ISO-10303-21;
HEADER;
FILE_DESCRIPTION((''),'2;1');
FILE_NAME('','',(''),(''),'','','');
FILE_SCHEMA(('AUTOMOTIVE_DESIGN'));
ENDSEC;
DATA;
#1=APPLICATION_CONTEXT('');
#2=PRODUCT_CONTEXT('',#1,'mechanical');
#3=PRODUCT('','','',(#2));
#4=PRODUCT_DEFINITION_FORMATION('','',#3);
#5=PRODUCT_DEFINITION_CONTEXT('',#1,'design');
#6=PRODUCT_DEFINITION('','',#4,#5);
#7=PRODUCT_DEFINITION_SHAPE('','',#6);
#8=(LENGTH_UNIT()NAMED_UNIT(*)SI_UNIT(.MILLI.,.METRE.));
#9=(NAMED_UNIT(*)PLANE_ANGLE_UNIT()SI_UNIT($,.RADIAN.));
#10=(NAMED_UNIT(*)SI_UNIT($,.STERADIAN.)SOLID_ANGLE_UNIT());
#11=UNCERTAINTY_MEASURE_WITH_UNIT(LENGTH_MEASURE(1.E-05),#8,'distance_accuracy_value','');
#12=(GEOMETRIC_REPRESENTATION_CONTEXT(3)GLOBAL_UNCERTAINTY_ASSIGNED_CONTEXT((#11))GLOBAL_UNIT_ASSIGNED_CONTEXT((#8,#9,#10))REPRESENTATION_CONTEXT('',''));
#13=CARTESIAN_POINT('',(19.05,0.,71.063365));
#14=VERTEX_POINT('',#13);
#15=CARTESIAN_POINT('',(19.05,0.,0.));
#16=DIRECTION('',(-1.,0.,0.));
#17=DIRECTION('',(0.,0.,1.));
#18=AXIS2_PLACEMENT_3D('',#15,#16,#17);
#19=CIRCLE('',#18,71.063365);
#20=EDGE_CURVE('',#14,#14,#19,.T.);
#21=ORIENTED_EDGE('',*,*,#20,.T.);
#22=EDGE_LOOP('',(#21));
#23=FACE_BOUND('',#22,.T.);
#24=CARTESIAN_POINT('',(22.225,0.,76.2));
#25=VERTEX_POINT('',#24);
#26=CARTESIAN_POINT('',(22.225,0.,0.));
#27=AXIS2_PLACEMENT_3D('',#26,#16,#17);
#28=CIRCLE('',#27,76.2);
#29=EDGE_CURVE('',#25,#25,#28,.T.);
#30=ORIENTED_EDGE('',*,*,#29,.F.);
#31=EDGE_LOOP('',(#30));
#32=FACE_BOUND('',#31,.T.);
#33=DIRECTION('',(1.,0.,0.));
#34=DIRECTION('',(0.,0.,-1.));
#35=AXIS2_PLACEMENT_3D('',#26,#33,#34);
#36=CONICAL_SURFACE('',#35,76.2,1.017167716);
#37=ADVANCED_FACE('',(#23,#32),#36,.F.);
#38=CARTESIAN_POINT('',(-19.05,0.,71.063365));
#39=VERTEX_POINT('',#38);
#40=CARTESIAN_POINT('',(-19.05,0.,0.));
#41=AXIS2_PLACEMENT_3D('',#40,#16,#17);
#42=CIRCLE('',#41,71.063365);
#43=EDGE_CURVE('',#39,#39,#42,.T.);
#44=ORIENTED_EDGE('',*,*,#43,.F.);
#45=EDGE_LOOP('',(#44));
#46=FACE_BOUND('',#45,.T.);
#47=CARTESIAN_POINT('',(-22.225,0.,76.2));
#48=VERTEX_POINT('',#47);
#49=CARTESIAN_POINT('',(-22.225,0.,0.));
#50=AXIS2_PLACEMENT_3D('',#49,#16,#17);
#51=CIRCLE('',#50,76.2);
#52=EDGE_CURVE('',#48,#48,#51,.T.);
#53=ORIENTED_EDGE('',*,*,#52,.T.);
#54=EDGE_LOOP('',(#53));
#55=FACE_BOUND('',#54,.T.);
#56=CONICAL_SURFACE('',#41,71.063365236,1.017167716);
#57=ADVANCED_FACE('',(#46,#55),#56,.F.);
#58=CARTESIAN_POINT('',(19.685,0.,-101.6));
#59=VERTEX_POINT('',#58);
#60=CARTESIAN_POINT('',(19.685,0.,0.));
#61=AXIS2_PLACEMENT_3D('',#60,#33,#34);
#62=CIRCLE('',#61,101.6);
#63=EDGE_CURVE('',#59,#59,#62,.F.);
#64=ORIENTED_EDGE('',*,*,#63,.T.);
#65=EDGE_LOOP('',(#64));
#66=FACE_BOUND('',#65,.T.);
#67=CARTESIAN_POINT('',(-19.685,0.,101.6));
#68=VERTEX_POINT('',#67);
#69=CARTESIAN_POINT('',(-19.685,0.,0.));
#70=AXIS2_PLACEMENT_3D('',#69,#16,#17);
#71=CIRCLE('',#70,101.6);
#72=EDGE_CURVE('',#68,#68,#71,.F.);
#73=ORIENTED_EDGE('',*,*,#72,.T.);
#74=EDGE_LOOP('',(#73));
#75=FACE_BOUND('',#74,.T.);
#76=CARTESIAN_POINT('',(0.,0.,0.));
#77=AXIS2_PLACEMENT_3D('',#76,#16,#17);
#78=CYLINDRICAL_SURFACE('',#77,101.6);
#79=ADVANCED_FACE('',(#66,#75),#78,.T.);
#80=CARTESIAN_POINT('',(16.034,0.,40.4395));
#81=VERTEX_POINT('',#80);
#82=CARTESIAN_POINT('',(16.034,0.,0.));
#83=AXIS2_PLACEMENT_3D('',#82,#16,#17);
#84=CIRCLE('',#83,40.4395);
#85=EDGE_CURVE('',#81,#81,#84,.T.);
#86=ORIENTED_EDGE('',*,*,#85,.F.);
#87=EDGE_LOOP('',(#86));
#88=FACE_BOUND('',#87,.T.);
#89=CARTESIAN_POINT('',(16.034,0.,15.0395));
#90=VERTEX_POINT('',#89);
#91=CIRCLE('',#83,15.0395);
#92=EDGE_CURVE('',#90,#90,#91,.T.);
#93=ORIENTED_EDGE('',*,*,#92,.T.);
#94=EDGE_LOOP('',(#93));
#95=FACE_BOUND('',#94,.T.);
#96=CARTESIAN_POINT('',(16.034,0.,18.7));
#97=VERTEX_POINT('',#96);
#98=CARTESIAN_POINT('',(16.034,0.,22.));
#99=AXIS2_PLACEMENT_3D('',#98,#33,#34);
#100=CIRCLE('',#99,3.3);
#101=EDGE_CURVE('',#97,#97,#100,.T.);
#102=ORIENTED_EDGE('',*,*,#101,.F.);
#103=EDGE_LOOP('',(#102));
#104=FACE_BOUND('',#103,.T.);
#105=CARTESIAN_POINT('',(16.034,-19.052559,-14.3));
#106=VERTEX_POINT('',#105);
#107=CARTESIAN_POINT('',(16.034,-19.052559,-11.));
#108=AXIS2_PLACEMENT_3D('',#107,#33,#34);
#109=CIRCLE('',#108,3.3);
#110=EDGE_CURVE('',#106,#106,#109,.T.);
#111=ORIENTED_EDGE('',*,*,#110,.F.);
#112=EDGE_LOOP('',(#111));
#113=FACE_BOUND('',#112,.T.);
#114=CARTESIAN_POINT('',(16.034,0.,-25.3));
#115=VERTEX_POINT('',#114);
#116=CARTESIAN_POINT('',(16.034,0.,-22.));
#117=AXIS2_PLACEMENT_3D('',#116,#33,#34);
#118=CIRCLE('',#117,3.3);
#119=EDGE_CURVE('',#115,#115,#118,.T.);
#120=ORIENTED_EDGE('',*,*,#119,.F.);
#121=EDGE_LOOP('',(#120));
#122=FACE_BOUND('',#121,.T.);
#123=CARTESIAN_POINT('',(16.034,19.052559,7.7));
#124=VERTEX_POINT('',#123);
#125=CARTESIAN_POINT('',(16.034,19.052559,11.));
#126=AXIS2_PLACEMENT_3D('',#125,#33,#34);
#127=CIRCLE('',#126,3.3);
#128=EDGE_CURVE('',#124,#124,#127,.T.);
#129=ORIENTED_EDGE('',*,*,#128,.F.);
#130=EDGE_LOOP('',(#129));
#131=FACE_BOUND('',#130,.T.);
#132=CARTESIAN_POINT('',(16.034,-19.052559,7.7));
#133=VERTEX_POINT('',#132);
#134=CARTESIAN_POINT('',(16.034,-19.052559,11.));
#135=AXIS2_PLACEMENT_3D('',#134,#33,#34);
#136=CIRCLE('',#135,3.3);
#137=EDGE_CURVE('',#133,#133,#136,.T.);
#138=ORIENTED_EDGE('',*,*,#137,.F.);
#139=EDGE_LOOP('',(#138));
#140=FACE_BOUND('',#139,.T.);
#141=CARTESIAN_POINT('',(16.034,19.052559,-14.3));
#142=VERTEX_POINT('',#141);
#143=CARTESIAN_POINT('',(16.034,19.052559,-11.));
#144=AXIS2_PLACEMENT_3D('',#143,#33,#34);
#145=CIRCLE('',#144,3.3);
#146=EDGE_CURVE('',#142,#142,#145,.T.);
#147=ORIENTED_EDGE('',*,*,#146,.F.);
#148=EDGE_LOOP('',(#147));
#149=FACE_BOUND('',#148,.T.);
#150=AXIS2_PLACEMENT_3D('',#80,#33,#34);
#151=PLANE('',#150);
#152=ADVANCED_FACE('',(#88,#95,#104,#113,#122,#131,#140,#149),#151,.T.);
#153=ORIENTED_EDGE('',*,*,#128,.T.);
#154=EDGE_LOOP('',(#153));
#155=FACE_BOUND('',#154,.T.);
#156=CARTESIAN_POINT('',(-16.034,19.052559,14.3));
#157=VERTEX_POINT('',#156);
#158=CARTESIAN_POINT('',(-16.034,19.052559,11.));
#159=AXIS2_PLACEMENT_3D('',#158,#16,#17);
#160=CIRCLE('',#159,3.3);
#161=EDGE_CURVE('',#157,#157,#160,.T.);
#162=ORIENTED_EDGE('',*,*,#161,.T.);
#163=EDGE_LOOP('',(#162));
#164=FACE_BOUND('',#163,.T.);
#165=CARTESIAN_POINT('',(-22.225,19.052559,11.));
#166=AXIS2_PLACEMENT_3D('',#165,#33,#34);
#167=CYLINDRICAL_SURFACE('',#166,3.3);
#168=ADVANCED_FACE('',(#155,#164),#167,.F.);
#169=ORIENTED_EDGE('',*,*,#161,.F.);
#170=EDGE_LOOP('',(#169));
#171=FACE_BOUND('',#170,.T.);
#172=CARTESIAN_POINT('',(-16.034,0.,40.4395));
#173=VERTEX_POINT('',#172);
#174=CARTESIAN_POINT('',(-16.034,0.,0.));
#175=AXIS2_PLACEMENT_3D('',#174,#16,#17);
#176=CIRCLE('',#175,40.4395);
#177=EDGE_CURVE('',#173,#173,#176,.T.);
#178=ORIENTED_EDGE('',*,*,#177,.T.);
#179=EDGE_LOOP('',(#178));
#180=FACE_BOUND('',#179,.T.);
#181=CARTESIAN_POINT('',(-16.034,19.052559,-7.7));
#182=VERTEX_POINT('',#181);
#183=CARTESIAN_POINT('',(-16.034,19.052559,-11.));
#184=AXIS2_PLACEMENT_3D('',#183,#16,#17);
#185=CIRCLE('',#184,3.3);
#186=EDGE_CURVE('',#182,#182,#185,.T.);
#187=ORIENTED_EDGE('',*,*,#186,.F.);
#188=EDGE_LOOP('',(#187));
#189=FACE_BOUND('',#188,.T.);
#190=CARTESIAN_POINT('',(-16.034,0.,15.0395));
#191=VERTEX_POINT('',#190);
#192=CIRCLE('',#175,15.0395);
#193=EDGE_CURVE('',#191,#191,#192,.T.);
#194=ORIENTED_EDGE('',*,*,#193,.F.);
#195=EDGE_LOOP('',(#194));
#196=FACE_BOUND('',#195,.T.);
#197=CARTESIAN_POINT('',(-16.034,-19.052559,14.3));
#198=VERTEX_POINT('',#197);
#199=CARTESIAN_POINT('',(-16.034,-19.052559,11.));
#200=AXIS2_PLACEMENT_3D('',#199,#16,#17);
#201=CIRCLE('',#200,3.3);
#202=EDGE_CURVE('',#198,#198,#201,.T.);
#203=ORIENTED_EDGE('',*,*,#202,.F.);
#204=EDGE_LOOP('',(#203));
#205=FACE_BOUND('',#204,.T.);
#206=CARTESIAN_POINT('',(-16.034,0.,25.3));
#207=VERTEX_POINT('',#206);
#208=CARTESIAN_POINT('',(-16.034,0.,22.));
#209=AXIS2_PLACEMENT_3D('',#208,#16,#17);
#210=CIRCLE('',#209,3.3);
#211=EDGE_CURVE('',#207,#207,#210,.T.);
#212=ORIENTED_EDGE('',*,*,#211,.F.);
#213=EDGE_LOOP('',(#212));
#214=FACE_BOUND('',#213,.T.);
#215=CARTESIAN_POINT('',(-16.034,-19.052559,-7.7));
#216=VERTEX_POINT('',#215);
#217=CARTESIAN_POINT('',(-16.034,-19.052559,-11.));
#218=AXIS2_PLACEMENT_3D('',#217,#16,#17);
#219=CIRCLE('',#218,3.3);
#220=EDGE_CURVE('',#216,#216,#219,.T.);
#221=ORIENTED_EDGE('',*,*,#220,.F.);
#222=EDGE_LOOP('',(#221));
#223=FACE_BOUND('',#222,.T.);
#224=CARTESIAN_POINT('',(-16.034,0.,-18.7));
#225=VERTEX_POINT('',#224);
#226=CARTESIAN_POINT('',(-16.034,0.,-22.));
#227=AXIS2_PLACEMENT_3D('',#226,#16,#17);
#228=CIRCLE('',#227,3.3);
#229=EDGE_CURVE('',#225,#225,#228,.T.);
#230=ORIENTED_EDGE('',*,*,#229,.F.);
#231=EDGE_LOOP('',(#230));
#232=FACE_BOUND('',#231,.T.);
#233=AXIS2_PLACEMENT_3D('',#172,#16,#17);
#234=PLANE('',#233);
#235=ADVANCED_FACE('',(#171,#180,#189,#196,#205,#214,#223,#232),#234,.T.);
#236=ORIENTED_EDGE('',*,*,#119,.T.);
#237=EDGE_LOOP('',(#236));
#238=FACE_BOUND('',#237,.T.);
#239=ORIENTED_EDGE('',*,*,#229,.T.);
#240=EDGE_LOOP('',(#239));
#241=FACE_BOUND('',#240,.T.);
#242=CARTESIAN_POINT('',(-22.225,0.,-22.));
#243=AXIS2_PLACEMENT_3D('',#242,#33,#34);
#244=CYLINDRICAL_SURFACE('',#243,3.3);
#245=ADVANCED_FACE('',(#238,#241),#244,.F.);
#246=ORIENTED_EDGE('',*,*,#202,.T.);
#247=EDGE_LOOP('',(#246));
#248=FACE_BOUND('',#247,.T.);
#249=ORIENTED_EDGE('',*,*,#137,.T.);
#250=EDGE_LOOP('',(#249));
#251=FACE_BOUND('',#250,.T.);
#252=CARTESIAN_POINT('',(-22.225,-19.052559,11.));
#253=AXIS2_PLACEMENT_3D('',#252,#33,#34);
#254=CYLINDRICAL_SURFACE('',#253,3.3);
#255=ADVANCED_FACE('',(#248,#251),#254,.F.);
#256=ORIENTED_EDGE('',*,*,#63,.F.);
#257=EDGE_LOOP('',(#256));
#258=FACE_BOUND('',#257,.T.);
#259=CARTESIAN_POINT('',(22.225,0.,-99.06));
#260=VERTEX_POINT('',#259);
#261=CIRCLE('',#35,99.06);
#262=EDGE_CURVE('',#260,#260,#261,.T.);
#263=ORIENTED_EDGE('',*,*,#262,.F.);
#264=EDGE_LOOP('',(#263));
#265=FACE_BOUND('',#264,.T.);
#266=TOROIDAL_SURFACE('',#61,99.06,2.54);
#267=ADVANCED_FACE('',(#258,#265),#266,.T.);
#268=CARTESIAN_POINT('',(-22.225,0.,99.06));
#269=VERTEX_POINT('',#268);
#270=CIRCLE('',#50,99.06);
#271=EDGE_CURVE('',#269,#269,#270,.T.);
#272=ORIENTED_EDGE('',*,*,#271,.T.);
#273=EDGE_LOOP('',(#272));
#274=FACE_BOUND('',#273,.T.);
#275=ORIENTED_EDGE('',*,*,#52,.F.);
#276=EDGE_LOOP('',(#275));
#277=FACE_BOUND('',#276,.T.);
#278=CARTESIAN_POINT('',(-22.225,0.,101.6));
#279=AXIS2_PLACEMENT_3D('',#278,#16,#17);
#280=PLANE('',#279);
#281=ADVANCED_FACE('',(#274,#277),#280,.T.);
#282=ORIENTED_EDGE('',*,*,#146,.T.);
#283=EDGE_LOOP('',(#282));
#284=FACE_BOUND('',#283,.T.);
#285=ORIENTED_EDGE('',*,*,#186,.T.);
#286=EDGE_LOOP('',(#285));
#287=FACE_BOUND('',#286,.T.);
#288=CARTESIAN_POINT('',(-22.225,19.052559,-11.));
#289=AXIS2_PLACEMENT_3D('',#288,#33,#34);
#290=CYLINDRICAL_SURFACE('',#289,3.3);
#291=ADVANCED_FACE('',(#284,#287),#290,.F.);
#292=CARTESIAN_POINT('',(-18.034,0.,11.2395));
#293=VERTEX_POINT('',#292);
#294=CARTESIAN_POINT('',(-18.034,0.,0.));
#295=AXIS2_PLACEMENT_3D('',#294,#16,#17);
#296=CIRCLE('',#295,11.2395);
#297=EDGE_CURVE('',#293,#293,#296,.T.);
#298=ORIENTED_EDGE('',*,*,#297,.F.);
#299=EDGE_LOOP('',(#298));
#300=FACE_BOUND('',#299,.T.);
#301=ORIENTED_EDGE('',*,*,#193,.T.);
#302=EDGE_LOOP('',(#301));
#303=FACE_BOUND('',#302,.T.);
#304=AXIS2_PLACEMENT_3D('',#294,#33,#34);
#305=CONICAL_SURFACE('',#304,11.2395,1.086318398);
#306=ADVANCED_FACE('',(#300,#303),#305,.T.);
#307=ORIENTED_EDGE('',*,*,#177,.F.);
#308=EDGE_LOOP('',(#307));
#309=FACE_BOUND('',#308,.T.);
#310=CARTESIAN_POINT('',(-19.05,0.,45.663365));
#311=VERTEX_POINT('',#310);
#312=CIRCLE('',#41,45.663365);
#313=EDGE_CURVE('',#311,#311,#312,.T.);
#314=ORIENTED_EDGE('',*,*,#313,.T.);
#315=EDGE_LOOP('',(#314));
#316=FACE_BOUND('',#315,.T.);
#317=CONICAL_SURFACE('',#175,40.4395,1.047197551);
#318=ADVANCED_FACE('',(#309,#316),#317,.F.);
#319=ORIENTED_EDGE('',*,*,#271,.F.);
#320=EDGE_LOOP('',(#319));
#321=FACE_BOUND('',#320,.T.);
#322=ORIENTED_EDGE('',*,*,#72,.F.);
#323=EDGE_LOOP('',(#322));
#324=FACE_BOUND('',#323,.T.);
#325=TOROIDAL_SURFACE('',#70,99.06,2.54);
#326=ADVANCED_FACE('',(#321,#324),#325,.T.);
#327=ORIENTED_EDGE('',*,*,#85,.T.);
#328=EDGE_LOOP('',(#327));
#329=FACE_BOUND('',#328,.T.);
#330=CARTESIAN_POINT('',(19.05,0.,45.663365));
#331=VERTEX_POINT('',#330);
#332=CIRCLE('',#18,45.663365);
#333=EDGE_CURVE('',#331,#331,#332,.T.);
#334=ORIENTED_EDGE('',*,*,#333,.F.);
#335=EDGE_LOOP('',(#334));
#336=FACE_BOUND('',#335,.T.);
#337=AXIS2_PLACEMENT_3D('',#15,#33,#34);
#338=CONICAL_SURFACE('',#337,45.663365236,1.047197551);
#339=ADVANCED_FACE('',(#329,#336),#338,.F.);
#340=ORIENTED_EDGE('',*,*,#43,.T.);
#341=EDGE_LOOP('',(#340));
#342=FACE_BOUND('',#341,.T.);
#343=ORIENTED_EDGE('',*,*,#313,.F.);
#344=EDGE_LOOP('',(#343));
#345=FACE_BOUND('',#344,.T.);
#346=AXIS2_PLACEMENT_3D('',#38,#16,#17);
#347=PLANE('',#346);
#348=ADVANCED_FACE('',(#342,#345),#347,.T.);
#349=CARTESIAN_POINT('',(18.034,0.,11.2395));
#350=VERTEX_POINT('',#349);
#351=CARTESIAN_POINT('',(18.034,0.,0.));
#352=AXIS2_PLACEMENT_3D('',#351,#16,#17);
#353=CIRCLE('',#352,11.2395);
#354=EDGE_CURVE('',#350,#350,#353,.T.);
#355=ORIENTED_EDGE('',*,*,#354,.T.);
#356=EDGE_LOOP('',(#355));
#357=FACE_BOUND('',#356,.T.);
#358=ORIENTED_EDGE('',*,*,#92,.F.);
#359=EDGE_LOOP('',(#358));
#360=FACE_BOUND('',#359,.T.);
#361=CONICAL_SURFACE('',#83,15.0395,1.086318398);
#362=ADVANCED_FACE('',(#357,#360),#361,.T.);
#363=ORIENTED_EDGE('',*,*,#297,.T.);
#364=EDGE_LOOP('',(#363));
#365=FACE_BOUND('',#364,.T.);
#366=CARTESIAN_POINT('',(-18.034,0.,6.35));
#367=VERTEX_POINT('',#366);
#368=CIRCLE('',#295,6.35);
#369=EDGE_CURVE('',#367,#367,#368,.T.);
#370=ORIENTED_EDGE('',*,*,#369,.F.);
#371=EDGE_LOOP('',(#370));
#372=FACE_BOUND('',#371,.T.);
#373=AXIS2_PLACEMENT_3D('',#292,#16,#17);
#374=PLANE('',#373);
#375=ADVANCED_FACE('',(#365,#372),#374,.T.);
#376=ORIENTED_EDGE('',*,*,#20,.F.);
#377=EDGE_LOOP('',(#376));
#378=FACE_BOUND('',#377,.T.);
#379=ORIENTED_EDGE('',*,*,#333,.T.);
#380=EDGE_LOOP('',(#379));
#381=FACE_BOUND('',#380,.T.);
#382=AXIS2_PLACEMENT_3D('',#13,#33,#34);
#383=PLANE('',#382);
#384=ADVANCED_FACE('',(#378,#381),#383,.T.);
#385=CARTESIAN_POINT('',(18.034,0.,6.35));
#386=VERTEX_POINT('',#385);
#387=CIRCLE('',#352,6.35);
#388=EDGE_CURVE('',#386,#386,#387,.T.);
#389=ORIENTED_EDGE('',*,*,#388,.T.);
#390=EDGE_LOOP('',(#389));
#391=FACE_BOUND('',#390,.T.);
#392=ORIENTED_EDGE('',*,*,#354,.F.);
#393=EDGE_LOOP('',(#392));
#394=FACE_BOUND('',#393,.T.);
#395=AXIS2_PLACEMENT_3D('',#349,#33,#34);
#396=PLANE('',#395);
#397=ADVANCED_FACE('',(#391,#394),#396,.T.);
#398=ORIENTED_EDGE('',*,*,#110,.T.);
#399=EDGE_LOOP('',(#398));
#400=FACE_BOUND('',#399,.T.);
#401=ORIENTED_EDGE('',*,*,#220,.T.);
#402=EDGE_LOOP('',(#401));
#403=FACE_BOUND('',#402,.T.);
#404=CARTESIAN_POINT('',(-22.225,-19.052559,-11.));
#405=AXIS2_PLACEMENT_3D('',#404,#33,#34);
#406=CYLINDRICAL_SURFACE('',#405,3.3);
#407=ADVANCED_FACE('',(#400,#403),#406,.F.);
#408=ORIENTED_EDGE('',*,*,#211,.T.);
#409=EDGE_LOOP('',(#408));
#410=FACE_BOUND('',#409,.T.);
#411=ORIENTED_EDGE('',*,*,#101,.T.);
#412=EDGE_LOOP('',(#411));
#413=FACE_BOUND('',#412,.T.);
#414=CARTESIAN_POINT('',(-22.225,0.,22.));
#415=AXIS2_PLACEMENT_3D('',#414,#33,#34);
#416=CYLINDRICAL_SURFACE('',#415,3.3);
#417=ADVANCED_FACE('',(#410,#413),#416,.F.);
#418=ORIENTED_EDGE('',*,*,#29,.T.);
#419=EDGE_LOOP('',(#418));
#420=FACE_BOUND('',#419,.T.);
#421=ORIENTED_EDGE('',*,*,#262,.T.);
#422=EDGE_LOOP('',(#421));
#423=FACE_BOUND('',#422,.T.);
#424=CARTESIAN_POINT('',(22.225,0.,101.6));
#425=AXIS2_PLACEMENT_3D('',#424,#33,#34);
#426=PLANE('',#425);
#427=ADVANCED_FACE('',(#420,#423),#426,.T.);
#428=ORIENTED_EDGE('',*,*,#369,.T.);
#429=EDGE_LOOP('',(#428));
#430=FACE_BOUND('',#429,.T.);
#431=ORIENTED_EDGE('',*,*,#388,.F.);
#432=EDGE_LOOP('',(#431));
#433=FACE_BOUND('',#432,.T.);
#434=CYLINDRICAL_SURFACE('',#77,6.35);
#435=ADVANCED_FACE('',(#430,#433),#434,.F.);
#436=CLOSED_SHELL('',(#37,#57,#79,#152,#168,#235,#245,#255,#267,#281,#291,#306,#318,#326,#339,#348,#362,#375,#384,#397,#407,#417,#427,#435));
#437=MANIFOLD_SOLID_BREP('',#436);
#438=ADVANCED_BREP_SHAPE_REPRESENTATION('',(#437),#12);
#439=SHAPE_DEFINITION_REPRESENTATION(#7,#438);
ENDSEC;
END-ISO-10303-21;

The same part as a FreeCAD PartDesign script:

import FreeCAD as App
import Part
import Sketcher
from FreeCAD import Vector
Q = App.Units.Quantity


def edges_at(feature, points):
    """Names of the edges that pass closest to the given points."""
    edges = feature.Shape.Edges
    near = lambda p: min(range(len(edges)), key=lambda i: edges[i].distToShape(Part.Vertex(*p))[0])
    return sorted({f"Edge{near(p) + 1}" for p in points})

doc = App.newDocument("Part")
body = doc.addObject("PartDesign::Body", "Body")

sketch1 = doc.addObject("Sketcher::SketchObject", "Sketch")
body.addObject(sketch1)
sketch1.AttachmentSupport = (doc.XZ_Plane, [""])
sketch1.MapMode = "FlatFace"
sketch1.addGeometry([
    Part.LineSegment(Vector(22.225, 101.6, 0), Vector(22.225, 76.2, 0)),
    Part.LineSegment(Vector(22.225, 76.2, 0), Vector(19.05, 71.063365, 0)),
    Part.LineSegment(Vector(19.05, 71.063365, 0), Vector(19.05, 45.663365, 0)),
    Part.LineSegment(Vector(19.05, 45.663365, 0), Vector(16.034, 40.4395, 0)),
    Part.LineSegment(Vector(16.034, 40.4395, 0), Vector(16.034, 15.0395, 0)),
    Part.LineSegment(Vector(16.034, 15.0395, 0), Vector(18.034, 11.2395, 0)),
    Part.LineSegment(Vector(18.034, 11.2395, 0), Vector(18.034, 6.35, 0)),
    Part.LineSegment(Vector(18.034, 6.35, 0), Vector(-18.034, 6.35, 0)),
    Part.LineSegment(Vector(-18.034, 6.35, 0), Vector(-18.034, 11.2395, 0)),
    Part.LineSegment(Vector(-18.034, 11.2395, 0), Vector(-16.034, 15.0395, 0)),
    Part.LineSegment(Vector(-16.034, 15.0395, 0), Vector(-16.034, 40.4395, 0)),
    Part.LineSegment(Vector(-16.034, 40.4395, 0), Vector(-19.05, 45.663365, 0)),
    Part.LineSegment(Vector(-19.05, 45.663365, 0), Vector(-19.05, 71.063365, 0)),
    Part.LineSegment(Vector(-19.05, 71.063365, 0), Vector(-22.225, 76.2, 0)),
    Part.LineSegment(Vector(-22.225, 76.2, 0), Vector(-22.225, 101.6, 0)),
    Part.LineSegment(Vector(-22.225, 101.6, 0), Vector(22.225, 101.6, 0)),
], False)
sketch1.addConstraint([
    Sketcher.Constraint("Coincident", 0, 2, 1, 1),
    Sketcher.Constraint("Coincident", 1, 2, 2, 1),
    Sketcher.Constraint("Coincident", 2, 2, 3, 1),
    Sketcher.Constraint("Coincident", 3, 2, 4, 1),
    Sketcher.Constraint("Coincident", 4, 2, 5, 1),
    Sketcher.Constraint("Coincident", 5, 2, 6, 1),
    Sketcher.Constraint("Coincident", 6, 2, 7, 1),
    Sketcher.Constraint("Coincident", 7, 2, 8, 1),
    Sketcher.Constraint("Coincident", 8, 2, 9, 1),
    Sketcher.Constraint("Coincident", 9, 2, 10, 1),
    Sketcher.Constraint("Coincident", 10, 2, 11, 1),
    Sketcher.Constraint("Coincident", 11, 2, 12, 1),
    Sketcher.Constraint("Coincident", 12, 2, 13, 1),
    Sketcher.Constraint("Coincident", 13, 2, 14, 1),
    Sketcher.Constraint("Coincident", 14, 2, 15, 1),
    Sketcher.Constraint("Coincident", 15, 2, 0, 1),
    Sketcher.Constraint("Vertical", 0),
    Sketcher.Constraint("Vertical", 2),
    Sketcher.Constraint("Vertical", 4),
    Sketcher.Constraint("Vertical", 6),
    Sketcher.Constraint("Horizontal", 7),
    Sketcher.Constraint("Vertical", 8),
    Sketcher.Constraint("Vertical", 10),
    Sketcher.Constraint("Vertical", 12),
    Sketcher.Constraint("Vertical", 14),
    Sketcher.Constraint("Horizontal", 15),
    Sketcher.Constraint("Symmetric", 5, 2, 8, 2, -2),
    Sketcher.Constraint("Symmetric", 4, 2, 9, 2, -2),
    Sketcher.Constraint("Symmetric", 2, 2, 11, 2, -2),
    Sketcher.Constraint("Symmetric", 0, 2, 13, 2, -2),
    Sketcher.Constraint("Horizontal", 3, 2, 10, 2),
    Sketcher.Constraint("Horizontal", 1, 2, 12, 2),
    Sketcher.Constraint("Equal", 0, 2),
    Sketcher.Constraint("Equal", 2, 4),
    Sketcher.Constraint("DistanceY", 0, 2, 0, 1, Q("1 in")),
    Sketcher.Constraint("DistanceY", -1, 1, 0, 2, Q("3 in")),
    Sketcher.Constraint("Angle", 3, Q("-120 deg")),
    Sketcher.Constraint("DistanceX", 7, 2, 7, 1, Q("1.42 in")),
    Sketcher.Constraint("DistanceX", 15, 1, 15, 2, Q("1.75 in")),
    Sketcher.Constraint("DistanceX", 11, 2, 2, 2, Q("1.5 in")),
    Sketcher.Constraint("DistanceY", -1, 1, 6, 2, Q("0.25 in")),
    Sketcher.Constraint("DistanceY", 6, 2, 6, 1, Q("0.1925 in")),
    Sketcher.Constraint("Distance", 3, 6.032),
    Sketcher.Constraint("DistanceY", -1, 1, 3, 2, 40.4395),
])
revolution = doc.addObject("PartDesign::Revolution", "Revolution")
body.addObject(revolution)
revolution.Profile = sketch1
revolution.ReferenceAxis = (sketch1, ["H_Axis"])
revolution.Angle = 360

sketch2 = doc.addObject("Sketcher::SketchObject", "Sketch001")
body.addObject(sketch2)
sketch2.AttachmentSupport = (doc.YZ_Plane, [""])
sketch2.MapMode = "FlatFace"
sketch2.AttachmentOffset = App.Placement(Vector(0, 0, 16.034), App.Rotation())
sketch2.addGeometry([
    Part.Circle(Vector(0, -22, 0), Vector(0, 0, 1), 3.3),
    Part.Circle(Vector(-19.052559, -11, 0), Vector(0, 0, 1), 3.3),
    Part.Circle(Vector(-19.052559, 11, 0), Vector(0, 0, 1), 3.3),
    Part.Circle(Vector(0, 22, 0), Vector(0, 0, 1), 3.3),
    Part.Circle(Vector(19.052559, 11, 0), Vector(0, 0, 1), 3.3),
    Part.Circle(Vector(19.052559, -11, 0), Vector(0, 0, 1), 3.3),
], False)
sketch2.addConstraint([
    Sketcher.Constraint("Equal", 0, 1),
    Sketcher.Constraint("Equal", 1, 2),
    Sketcher.Constraint("Equal", 2, 3),
    Sketcher.Constraint("Equal", 3, 4),
    Sketcher.Constraint("Equal", 4, 5),
    Sketcher.Constraint("Symmetric", 0, 3, 3, 3, -1, 1),
    Sketcher.Constraint("Symmetric", 1, 3, 4, 3, -1, 1),
    Sketcher.Constraint("Symmetric", 2, 3, 5, 3, -1, 1),
    Sketcher.Constraint("Symmetric", 2, 3, 4, 3, -2),
    Sketcher.Constraint("PointOnObject", 0, 3, -2),
    Sketcher.Constraint("Diameter", 0, 6.6),
    Sketcher.Constraint("DistanceY", 0, 3, -1, 1, 22.0),
    Sketcher.Constraint("DistanceY", 1, 3, -1, 1, 11.0),
    Sketcher.Constraint("DistanceX", 1, 3, -1, 1, 19.052559),
])
pocket1 = doc.addObject("PartDesign::Pocket", "Pocket")
body.addObject(pocket1)
pocket1.Profile = sketch2
pocket1.Type = "ThroughAll"
doc.recompute()

fillet = doc.addObject("PartDesign::Fillet", "Fillet")
body.addObject(fillet)
fillet.Base = (pocket1, edges_at(pocket1, [(22.225, 0, -101.6), (-22.225, 0, -101.6)]))
fillet.Radius = Q("0.1 in")

doc.recompute()
